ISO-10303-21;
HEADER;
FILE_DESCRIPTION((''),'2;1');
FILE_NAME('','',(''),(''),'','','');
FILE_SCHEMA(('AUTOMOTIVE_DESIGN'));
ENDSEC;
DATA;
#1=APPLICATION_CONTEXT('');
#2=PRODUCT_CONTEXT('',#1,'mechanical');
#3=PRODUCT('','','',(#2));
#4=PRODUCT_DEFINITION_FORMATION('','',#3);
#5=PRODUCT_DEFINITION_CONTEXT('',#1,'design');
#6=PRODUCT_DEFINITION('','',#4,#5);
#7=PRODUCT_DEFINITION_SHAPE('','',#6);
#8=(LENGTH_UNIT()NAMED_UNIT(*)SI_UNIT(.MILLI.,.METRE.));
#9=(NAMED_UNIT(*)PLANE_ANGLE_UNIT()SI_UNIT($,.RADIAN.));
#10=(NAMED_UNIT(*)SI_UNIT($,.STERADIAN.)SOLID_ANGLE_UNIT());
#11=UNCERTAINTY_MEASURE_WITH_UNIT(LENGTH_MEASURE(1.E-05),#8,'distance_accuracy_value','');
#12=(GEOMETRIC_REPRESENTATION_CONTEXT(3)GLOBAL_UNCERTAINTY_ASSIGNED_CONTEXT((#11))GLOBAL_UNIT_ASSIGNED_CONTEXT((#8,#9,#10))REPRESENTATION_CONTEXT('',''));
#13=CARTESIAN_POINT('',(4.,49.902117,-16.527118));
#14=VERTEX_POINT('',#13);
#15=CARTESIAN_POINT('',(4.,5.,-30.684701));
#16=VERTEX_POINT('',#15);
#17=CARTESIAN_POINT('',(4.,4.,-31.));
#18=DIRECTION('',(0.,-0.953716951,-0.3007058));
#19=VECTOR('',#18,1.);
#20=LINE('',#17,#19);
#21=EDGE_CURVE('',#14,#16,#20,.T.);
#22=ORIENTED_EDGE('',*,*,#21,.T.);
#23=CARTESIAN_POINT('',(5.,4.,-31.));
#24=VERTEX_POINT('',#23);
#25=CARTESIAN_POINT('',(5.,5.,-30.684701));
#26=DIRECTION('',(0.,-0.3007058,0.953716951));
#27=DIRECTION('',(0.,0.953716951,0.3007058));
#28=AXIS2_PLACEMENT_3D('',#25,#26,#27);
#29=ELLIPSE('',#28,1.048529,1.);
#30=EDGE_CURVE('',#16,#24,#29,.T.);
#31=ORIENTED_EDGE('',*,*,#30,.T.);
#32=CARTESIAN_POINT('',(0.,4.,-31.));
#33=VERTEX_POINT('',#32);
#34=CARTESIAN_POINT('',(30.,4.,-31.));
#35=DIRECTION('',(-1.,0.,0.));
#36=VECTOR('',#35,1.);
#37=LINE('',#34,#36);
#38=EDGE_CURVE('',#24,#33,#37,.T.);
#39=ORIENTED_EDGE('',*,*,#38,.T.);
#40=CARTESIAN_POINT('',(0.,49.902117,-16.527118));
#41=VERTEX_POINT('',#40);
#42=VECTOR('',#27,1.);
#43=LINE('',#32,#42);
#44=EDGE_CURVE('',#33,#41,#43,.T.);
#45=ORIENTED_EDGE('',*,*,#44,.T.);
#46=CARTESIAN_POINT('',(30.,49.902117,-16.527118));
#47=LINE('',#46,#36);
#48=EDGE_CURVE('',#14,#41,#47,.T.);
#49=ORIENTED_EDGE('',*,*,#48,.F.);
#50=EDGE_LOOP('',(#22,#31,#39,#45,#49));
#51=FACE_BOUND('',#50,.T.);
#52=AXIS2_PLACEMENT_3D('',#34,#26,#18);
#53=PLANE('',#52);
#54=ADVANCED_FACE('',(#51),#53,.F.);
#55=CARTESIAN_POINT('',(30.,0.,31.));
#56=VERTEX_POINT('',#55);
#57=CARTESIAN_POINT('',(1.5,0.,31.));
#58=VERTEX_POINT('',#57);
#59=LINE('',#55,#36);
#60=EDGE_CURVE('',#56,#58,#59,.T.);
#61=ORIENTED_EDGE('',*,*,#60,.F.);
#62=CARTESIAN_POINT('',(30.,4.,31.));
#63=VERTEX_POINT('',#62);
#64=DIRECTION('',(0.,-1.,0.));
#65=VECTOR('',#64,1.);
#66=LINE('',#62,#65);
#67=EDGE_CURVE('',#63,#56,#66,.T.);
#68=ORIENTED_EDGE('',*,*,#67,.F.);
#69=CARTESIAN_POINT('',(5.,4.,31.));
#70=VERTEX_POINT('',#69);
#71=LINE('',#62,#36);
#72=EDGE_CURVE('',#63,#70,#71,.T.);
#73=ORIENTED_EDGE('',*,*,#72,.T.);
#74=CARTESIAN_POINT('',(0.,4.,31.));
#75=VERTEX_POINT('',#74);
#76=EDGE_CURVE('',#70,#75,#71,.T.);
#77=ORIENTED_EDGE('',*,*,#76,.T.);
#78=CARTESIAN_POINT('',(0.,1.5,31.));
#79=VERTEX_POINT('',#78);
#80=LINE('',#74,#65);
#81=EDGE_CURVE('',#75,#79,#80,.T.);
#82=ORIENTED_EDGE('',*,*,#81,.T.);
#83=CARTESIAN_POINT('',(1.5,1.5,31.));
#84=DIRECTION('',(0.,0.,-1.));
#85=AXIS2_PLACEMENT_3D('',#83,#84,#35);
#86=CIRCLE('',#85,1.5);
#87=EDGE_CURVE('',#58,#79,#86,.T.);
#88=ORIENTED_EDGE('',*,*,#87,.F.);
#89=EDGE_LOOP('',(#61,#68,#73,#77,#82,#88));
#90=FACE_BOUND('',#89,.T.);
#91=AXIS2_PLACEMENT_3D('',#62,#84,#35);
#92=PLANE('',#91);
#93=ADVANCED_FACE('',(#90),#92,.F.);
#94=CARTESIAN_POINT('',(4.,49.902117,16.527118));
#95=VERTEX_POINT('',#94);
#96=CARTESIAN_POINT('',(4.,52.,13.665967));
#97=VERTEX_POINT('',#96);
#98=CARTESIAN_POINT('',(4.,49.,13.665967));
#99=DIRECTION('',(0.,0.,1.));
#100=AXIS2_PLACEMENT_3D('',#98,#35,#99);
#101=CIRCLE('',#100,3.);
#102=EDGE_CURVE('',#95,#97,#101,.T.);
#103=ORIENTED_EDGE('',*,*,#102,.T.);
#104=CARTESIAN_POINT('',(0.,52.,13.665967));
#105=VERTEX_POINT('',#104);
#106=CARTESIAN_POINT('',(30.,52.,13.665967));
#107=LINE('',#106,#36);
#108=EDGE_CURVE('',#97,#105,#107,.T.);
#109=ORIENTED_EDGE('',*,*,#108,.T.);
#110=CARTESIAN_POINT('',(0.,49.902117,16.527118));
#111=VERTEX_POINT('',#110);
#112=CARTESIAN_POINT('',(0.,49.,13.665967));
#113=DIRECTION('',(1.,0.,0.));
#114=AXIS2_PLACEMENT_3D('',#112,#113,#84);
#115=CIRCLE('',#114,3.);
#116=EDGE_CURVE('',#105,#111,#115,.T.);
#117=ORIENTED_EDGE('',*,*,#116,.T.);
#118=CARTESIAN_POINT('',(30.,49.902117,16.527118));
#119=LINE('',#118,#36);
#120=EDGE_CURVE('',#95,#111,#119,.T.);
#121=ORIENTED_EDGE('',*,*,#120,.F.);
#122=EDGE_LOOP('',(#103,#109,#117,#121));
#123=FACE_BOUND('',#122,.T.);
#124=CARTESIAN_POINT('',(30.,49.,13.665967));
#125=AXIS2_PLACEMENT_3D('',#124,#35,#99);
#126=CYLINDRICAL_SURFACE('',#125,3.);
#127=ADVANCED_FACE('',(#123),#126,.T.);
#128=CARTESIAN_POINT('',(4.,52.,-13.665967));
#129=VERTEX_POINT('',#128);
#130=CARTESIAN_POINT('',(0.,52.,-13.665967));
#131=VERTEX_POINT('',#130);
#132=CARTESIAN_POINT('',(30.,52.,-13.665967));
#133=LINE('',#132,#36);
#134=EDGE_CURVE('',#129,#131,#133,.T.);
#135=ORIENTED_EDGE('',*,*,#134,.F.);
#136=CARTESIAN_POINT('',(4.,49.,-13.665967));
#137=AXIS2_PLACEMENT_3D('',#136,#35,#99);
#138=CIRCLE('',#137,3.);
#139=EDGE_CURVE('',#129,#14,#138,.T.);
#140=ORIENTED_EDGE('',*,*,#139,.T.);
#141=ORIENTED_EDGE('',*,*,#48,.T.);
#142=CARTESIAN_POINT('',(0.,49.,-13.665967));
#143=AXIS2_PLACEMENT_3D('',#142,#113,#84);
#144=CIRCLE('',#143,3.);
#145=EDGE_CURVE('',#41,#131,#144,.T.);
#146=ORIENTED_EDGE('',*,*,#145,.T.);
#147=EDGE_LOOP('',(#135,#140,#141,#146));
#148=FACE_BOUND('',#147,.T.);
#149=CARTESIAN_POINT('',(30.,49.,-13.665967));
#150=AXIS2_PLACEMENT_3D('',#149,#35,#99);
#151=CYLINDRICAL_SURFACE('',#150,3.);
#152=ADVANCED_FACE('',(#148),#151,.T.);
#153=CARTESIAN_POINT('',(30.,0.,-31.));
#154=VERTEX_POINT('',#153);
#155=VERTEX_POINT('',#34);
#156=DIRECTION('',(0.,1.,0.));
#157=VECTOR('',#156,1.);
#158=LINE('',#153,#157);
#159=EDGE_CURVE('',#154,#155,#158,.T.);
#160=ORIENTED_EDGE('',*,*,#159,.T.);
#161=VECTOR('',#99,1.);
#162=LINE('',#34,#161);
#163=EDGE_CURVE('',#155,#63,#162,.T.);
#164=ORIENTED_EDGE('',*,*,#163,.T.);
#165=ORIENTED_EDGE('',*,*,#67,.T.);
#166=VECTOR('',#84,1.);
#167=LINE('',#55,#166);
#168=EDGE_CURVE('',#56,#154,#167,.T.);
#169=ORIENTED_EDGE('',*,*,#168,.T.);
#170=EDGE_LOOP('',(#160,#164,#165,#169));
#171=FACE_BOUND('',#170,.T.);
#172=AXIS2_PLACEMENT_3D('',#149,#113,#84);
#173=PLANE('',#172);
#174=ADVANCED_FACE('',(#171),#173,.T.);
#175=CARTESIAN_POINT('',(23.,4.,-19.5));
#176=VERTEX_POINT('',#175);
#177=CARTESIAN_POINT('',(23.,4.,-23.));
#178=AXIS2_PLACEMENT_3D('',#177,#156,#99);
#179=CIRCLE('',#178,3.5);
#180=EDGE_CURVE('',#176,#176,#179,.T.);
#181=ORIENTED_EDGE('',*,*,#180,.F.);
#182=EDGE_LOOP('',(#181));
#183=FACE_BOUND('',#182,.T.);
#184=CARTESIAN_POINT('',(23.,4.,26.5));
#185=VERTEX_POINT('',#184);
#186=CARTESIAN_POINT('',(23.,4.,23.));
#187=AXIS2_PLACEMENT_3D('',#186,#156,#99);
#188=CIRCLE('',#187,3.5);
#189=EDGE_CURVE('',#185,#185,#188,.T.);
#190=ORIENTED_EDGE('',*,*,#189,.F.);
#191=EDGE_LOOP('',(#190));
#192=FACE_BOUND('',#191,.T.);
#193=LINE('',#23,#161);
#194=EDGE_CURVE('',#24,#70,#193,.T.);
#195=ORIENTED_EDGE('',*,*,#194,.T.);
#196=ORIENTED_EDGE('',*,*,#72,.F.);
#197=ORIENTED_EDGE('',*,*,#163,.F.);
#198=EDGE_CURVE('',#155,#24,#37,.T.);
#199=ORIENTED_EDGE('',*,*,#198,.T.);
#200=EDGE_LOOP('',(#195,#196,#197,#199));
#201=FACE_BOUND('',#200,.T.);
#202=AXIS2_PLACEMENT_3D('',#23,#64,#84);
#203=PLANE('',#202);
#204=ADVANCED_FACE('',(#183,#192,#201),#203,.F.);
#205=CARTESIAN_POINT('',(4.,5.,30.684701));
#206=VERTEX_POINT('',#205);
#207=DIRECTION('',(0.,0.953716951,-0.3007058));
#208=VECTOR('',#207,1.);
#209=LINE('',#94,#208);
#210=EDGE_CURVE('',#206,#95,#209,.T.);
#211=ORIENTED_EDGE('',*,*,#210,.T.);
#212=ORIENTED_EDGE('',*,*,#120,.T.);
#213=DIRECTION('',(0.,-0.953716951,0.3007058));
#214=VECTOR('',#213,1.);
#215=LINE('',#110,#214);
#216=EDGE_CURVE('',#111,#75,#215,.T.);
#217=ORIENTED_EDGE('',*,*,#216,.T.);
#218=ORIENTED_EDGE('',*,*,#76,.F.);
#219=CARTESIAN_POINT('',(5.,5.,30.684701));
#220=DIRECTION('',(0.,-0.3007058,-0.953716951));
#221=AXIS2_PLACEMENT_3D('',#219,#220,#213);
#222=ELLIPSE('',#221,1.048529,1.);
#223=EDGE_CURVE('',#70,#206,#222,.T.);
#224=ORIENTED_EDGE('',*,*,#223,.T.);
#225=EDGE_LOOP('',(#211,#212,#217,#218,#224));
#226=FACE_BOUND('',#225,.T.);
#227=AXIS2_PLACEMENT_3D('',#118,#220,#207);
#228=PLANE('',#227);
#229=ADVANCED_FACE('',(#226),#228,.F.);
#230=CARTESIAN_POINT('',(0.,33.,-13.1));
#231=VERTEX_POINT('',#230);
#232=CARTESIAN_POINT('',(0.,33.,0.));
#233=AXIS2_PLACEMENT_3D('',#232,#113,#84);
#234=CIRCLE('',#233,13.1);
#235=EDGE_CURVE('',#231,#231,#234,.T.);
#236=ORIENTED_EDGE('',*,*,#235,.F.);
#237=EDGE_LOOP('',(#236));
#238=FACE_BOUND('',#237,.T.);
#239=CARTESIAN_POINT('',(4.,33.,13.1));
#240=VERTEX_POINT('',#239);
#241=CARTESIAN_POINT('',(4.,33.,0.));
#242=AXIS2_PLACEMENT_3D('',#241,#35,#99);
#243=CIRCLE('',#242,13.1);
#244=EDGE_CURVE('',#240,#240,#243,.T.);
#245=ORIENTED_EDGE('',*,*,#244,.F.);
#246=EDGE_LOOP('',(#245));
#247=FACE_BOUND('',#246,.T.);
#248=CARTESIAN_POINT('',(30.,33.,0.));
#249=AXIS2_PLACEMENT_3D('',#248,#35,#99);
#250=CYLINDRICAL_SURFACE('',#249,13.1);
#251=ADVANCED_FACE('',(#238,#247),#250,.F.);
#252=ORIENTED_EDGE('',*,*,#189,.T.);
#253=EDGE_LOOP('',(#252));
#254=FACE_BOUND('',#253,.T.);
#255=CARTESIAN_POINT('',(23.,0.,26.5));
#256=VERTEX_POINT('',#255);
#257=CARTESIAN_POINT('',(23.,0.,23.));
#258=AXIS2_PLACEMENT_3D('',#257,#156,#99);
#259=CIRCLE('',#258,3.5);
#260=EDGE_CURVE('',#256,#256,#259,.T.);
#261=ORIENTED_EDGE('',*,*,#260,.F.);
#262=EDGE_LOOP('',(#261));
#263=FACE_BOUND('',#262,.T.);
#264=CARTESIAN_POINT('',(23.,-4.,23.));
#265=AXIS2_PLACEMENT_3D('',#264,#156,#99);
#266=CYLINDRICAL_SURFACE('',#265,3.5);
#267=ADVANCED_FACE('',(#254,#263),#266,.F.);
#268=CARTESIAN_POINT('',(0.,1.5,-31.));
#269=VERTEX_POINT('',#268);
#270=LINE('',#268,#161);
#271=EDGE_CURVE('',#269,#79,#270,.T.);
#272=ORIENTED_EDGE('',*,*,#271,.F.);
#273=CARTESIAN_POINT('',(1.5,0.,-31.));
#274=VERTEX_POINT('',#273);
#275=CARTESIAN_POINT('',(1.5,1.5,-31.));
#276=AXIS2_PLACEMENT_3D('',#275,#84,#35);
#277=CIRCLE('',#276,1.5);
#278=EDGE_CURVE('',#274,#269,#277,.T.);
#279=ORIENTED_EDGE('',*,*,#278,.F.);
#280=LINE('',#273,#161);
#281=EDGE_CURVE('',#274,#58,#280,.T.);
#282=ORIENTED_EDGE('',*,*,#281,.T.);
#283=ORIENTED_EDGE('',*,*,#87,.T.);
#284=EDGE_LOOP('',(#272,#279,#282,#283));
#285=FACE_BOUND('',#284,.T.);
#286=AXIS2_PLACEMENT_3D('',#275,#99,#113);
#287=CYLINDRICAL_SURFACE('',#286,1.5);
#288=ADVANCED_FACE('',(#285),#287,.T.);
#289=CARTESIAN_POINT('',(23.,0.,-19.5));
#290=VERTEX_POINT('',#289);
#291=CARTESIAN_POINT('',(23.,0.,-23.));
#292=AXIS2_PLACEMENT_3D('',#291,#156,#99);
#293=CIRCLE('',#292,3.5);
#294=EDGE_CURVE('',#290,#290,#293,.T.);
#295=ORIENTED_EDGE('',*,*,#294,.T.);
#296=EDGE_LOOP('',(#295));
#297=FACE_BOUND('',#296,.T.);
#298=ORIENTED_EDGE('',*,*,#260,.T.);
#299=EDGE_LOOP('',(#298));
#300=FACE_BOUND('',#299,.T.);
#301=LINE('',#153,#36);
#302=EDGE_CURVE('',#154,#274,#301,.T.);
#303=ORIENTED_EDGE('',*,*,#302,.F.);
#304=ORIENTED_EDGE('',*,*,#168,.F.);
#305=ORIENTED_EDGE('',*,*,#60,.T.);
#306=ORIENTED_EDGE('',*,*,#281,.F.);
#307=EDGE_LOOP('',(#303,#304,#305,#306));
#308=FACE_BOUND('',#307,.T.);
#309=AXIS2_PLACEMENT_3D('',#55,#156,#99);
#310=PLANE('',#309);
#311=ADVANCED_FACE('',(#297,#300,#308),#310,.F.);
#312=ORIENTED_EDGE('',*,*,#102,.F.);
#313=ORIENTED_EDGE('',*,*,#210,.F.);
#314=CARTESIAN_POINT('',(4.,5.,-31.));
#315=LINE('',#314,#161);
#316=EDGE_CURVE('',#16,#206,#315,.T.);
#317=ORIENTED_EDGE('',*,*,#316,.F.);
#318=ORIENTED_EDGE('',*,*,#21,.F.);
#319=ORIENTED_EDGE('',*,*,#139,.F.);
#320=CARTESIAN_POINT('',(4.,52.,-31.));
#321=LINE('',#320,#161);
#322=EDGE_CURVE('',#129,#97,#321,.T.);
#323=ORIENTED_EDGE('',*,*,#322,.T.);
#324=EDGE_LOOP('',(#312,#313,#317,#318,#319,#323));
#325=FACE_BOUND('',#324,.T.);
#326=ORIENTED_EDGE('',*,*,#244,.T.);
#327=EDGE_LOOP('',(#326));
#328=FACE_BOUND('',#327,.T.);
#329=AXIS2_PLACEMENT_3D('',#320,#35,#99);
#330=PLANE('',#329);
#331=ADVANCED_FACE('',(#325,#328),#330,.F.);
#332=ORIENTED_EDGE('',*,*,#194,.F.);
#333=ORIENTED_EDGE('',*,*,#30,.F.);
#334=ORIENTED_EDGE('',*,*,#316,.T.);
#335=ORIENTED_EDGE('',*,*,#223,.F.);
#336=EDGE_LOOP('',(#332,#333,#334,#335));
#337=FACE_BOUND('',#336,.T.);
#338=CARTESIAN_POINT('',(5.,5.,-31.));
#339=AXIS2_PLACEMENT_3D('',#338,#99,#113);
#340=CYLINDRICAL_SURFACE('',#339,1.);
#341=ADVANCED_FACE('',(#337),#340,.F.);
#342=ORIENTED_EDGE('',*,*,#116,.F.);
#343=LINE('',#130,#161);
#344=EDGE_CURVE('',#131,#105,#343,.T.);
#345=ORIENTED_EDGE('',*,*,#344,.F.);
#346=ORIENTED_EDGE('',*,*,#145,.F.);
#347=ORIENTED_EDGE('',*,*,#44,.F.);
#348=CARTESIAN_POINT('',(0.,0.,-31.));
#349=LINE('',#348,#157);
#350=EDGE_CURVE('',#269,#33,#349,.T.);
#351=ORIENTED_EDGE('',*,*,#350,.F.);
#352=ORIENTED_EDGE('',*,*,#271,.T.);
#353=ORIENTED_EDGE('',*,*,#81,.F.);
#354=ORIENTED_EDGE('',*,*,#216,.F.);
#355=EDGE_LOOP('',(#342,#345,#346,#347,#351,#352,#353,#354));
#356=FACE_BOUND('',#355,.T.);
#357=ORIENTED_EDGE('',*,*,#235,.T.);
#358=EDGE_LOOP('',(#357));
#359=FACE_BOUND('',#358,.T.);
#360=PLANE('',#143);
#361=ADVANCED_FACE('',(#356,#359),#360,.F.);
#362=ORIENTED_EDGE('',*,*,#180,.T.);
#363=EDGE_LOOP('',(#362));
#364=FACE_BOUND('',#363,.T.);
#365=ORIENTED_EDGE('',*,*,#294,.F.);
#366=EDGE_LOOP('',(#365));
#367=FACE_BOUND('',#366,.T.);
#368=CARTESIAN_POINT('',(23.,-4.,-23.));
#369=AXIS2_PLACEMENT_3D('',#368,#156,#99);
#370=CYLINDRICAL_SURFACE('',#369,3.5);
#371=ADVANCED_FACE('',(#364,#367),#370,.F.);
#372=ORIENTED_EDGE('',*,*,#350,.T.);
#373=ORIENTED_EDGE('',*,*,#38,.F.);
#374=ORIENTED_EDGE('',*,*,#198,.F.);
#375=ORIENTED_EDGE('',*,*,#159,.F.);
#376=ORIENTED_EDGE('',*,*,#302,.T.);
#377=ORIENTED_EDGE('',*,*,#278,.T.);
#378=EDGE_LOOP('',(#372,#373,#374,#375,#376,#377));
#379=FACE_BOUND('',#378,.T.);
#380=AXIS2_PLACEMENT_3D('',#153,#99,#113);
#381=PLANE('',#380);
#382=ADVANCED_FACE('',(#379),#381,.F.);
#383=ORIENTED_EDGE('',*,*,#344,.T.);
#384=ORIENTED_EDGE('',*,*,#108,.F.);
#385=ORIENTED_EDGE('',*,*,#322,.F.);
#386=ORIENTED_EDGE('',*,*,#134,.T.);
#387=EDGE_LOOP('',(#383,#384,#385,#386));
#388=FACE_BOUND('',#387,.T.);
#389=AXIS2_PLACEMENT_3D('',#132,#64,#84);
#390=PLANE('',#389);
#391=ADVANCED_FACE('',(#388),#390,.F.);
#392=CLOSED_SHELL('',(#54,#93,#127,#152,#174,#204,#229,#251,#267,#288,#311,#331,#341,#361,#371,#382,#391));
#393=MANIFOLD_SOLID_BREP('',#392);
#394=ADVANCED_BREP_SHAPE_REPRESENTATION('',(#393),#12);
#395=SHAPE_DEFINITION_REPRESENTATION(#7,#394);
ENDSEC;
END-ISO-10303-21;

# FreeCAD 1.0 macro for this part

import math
import FreeCAD as App
import Part
import Sketcher

V = App.Vector
Q = App.Units.Quantity

doc = App.newDocument("Part")
body = doc.addObject("PartDesign::Body", "Body")

# Sketch on YZ plane
sketch1 = body.newObject("Sketcher::SketchObject", "Sketch")
sketch1.AttachmentSupport = (doc.getObject("YZ_Plane"), [""])
sketch1.MapMode = "FlatFace"
sketch1.addGeometry([
    Part.LineSegment(V(0, 31, 0), V(0, -31, 0)),  # 0
    Part.LineSegment(V(0, -31, 0), V(4, -31, 0)),  # 1
    Part.LineSegment(V(4, -31, 0), V(49.9, -16.5, 0)),  # 2
    Part.ArcOfCircle(Part.Circle(V(49, -13.7, 0), V(0, 0, 1), 3), math.radians(-73), math.radians(0)),  # 3
    Part.LineSegment(V(52, -13.7, 0), V(52, 13.7, 0)),  # 4
    Part.ArcOfCircle(Part.Circle(V(49, 13.7, 0), V(0, 0, 1), 3), math.radians(0), math.radians(73)),  # 5
    Part.LineSegment(V(49.9, 16.5, 0), V(4, 31, 0)),  # 6
    Part.LineSegment(V(4, 31, 0), V(0, 31, 0)),  # 7
    Part.Circle(V(33, 0, 0), V(0, 0, 1), 13.1),  # 8
], False)
sketch1.addConstraint([
    Sketcher.Constraint("Coincident", 0, 2, 1, 1),
    Sketcher.Constraint("Coincident", 1, 2, 2, 1),
    Sketcher.Constraint("Tangent", 2, 2, 3, 1),
    Sketcher.Constraint("Tangent", 3, 2, 4, 1),
    Sketcher.Constraint("Tangent", 4, 2, 5, 1),
    Sketcher.Constraint("Tangent", 5, 2, 6, 1),
    Sketcher.Constraint("Coincident", 6, 2, 7, 1),
    Sketcher.Constraint("Coincident", 7, 2, 0, 1),
    Sketcher.Constraint("Vertical", 0),
    Sketcher.Constraint("Horizontal", 1),
    Sketcher.Constraint("Vertical", 4),
    Sketcher.Constraint("Horizontal", 7),
    Sketcher.Constraint("Equal", 3, 5),
    Sketcher.Constraint("Symmetric", 0, 2, 7, 2, -1, 1),
    Sketcher.Constraint("Symmetric", 2, 2, 5, 2, -1),
    Sketcher.Constraint("PointOnObject", 8, 3, -1),
    Sketcher.Constraint("Radius", 3, Q("3 mm")),
    Sketcher.Constraint("Diameter", 8, Q("26.2 mm")),
    Sketcher.Constraint("DistanceX", 1, 1, 1, 2, Q("4 mm")),
    Sketcher.Constraint("DistanceY", 0, 2, 0, 1, Q("62 mm")),
    Sketcher.Constraint("DistanceX", -1, 1, 3, 3, Q("49 mm")),
    Sketcher.Constraint("DistanceX", -1, 1, 8, 3, Q("33 mm")),
    Sketcher.Constraint("Angle", 2, Q("17.5 deg")),
])
pad1 = body.newObject("PartDesign::Pad", "Pad")
pad1.Profile = sketch1
pad1.Length = 30

# Sketch on XY plane
sketch2 = body.newObject("Sketcher::SketchObject", "Sketch001")
sketch2.AttachmentSupport = (doc.getObject("XY_Plane"), [""])
sketch2.MapMode = "FlatFace"
sketch2.addGeometry([
    Part.LineSegment(V(5, 4, 0), V(30, 4, 0)),  # 0
    Part.LineSegment(V(30, 4, 0), V(30, 52, 0)),  # 1
    Part.LineSegment(V(30, 52, 0), V(4, 52, 0)),  # 2
    Part.LineSegment(V(4, 52, 0), V(4, 5, 0)),  # 3
    Part.ArcOfCircle(Part.Circle(V(5, 5, 0), V(0, 0, 1), 1), math.radians(-180), math.radians(-90)),  # 4
], False)
sketch2.addConstraint([
    Sketcher.Constraint("Coincident", 0, 2, 1, 1),
    Sketcher.Constraint("Coincident", 1, 2, 2, 1),
    Sketcher.Constraint("Coincident", 2, 2, 3, 1),
    Sketcher.Constraint("Tangent", 3, 2, 4, 1),
    Sketcher.Constraint("Tangent", 4, 2, 0, 1),
    Sketcher.Constraint("Horizontal", 0),
    Sketcher.Constraint("Vertical", 1),
    Sketcher.Constraint("Horizontal", 2),
    Sketcher.Constraint("Vertical", 3),
    Sketcher.Constraint("Radius", 4, Q("1 mm")),
    Sketcher.Constraint("DistanceX", 0, 1, 0, 2, Q("25 mm")),
    Sketcher.Constraint("DistanceY", 1, 1, 1, 2, Q("48 mm")),
    Sketcher.Constraint("DistanceX", -1, 1, 4, 3, Q("5 mm")),
    Sketcher.Constraint("DistanceY", -1, 1, 4, 3, Q("5 mm")),
])
pocket1 = body.newObject("PartDesign::Pocket", "Pocket")
pocket1.Profile = sketch2
pocket1.Type = "ThroughAll"
pocket1.Midplane = True

# Sketch on XY plane
sketch3 = body.newObject("Sketcher::SketchObject", "Sketch002")
sketch3.AttachmentSupport = (doc.getObject("XY_Plane"), [""])
sketch3.MapMode = "FlatFace"
sketch3.addGeometry([
    Part.LineSegment(V(-1, -1, 0), V(1.5, -1, 0)),  # 0
    Part.LineSegment(V(1.5, -1, 0), V(1.5, 0, 0)),  # 1
    Part.ArcOfCircle(Part.Circle(V(1.5, 1.5, 0), V(0, 0, 1), 1.5), math.radians(180), math.radians(270)),  # 2
    Part.LineSegment(V(0, 1.5, 0), V(-1, 1.5, 0)),  # 3
    Part.LineSegment(V(-1, 1.5, 0), V(-1, -1, 0)),  # 4
], False)
sketch3.addConstraint([
    Sketcher.Constraint("Coincident", 0, 2, 1, 1),
    Sketcher.Constraint("Coincident", 1, 2, 2, 2),
    Sketcher.Constraint("Coincident", 2, 1, 3, 1),
    Sketcher.Constraint("Coincident", 3, 2, 4, 1),
    Sketcher.Constraint("Coincident", 4, 2, 0, 1),
    Sketcher.Constraint("Horizontal", 0),
    Sketcher.Constraint("Vertical", 1),
    Sketcher.Constraint("Horizontal", 3),
    Sketcher.Constraint("Vertical", 4),
    Sketcher.Constraint("PointOnObject", 1, 2, -1),
    Sketcher.Constraint("PointOnObject", 2, 1, -2),
    Sketcher.Constraint("Vertical", 2, 3, 0, 2),
    Sketcher.Constraint("Equal", 3, 1),
    Sketcher.Constraint("Equal", 0, 4),
    Sketcher.Constraint("Radius", 2, Q("1.5 mm")),
    Sketcher.Constraint("DistanceX", 3, 2, 3, 1, Q("1 mm")),
])
pocket2 = body.newObject("PartDesign::Pocket", "Pocket001")
pocket2.Profile = sketch3
pocket2.Type = "ThroughAll"
pocket2.Midplane = True

# Sketch on XZ plane
sketch4 = body.newObject("Sketcher::SketchObject", "Sketch003")
sketch4.AttachmentSupport = (doc.getObject("XZ_Plane"), [""])
sketch4.MapMode = "FlatFace"
sketch4.addGeometry(Part.Circle(V(23, -23, 0), V(0, 0, 1), 3.5), False)
sketch4.addConstraint([
    Sketcher.Constraint("Diameter", 0, Q("7 mm")),
    Sketcher.Constraint("DistanceX", -1, 1, 0, 3, Q("23 mm")),
    Sketcher.Constraint("DistanceY", 0, 3, -1, 1, Q("23 mm")),
])
pocket3 = body.newObject("PartDesign::Pocket", "Pocket002")
pocket3.Profile = sketch4
pocket3.Type = "ThroughAll"
pocket3.Midplane = True

# Sketch on XZ plane
sketch5 = body.newObject("Sketcher::SketchObject", "Sketch004")
sketch5.AttachmentSupport = (doc.getObject("XZ_Plane"), [""])
sketch5.MapMode = "FlatFace"
sketch5.addGeometry(Part.Circle(V(23, 23, 0), V(0, 0, 1), 3.5), False)
sketch5.addConstraint([
    Sketcher.Constraint("Diameter", 0, Q("7 mm")),
    Sketcher.Constraint("DistanceX", -1, 1, 0, 3, Q("23 mm")),
    Sketcher.Constraint("DistanceY", -1, 1, 0, 3, Q("23 mm")),
])
pocket4 = body.newObject("PartDesign::Pocket", "Pocket003")
pocket4.Profile = sketch5
pocket4.Type = "ThroughAll"
pocket4.Midplane = True

doc.recompute()
